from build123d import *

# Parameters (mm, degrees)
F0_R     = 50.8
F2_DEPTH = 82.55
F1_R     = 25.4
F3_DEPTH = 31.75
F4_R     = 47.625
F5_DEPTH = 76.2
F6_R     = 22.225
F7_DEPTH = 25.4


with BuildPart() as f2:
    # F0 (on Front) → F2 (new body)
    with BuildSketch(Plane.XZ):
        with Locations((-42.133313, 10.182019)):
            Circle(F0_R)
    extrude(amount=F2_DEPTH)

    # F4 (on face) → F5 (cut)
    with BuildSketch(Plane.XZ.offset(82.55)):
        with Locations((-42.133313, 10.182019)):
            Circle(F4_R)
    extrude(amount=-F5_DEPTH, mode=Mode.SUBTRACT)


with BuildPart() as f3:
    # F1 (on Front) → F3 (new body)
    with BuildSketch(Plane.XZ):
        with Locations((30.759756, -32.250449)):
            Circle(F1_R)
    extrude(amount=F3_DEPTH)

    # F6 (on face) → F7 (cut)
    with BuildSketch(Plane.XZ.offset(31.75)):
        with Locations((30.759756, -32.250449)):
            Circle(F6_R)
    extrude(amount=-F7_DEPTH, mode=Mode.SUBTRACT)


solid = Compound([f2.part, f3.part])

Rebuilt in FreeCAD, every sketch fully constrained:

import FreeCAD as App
import Part
import Sketcher
Q = App.Units.Quantity

doc = App.newDocument("Part")
body = doc.addObject("PartDesign::Body", "Body")

# Sketch on XZ plane
sketch1 = body.newObject("Sketcher::SketchObject", "Sketch")
sketch1.AttachmentSupport = (doc.getObject("XZ_Plane"), [""])
sketch1.MapMode = "FlatFace"
sketch1.addGeometry(Part.Circle(App.Vector(-42.133313, 10.182019, 0), App.Vector(0, 0, 1), 50.8), False)
sketch1.addConstraint([
    Sketcher.Constraint("Diameter", 0, Q("4 in")),
    Sketcher.Constraint("DistanceY", -1, 1, 0, 3, 10.182019),
    Sketcher.Constraint("DistanceX", 0, 3, -1, 1, 42.133313),
])
pad1 = body.newObject("PartDesign::Pad", "Pad")
pad1.Profile = sketch1
pad1.Length = Q("3.25 in")

# Sketch on XZ plane
sketch2 = body.newObject("Sketcher::SketchObject", "Sketch001")
sketch2.AttachmentSupport = (doc.getObject("XZ_Plane"), [""])
sketch2.MapMode = "FlatFace"
sketch2.AttachmentOffset = App.Placement(App.Vector(0, 0, 3.25 * 25.4), App.Rotation())
sketch2.addGeometry(Part.Circle(App.Vector(-42.133313, 10.182019, 0), App.Vector(0, 0, 1), 47.625), False)
sketch2.addConstraint([
    Sketcher.Constraint("Diameter", 0, Q("3.75 in")),
    Sketcher.Constraint("DistanceY", -1, 1, 0, 3, 10.182019),
    Sketcher.Constraint("DistanceX", 0, 3, -1, 1, 42.133313),
])
pocket1 = body.newObject("PartDesign::Pocket", "Pocket")
pocket1.Profile = sketch2
pocket1.Length = Q("3 in")
body2 = doc.addObject("PartDesign::Body", "Body001")

# Sketch on XZ plane
sketch3 = body2.newObject("Sketcher::SketchObject", "Sketch002")
sketch3.AttachmentSupport = (doc.getObject("XZ_Plane001"), [""])
sketch3.MapMode = "FlatFace"
sketch3.addGeometry(Part.Circle(App.Vector(30.759756, -32.250449, 0), App.Vector(0, 0, 1), 25.4), False)
sketch3.addConstraint([
    Sketcher.Constraint("Diameter", 0, Q("2 in")),
    Sketcher.Constraint("DistanceY", 0, 3, -1, 1, 32.250449),
    Sketcher.Constraint("DistanceX", -1, 1, 0, 3, 30.759756),
])
pad2 = body2.newObject("PartDesign::Pad", "Pad001")
pad2.Profile = sketch3
pad2.Length = Q("1.25 in")

# Sketch on XZ plane
sketch4 = body2.newObject("Sketcher::SketchObject", "Sketch003")
sketch4.AttachmentSupport = (doc.getObject("XZ_Plane001"), [""])
sketch4.MapMode = "FlatFace"
sketch4.AttachmentOffset = App.Placement(App.Vector(0, 0, 1.25 * 25.4), App.Rotation())
sketch4.addGeometry(Part.Circle(App.Vector(30.759756, -32.250449, 0), App.Vector(0, 0, 1), 22.225), False)
sketch4.addConstraint([
    Sketcher.Constraint("Diameter", 0, Q("1.75 in")),
    Sketcher.Constraint("DistanceY", 0, 3, -1, 1, 32.250449),
    Sketcher.Constraint("DistanceX", -1, 1, 0, 3, 30.759756),
])
pocket2 = body2.newObject("PartDesign::Pocket", "Pocket001")
pocket2.Profile = sketch4
pocket2.Length = Q("1 in")

doc.recompute()
